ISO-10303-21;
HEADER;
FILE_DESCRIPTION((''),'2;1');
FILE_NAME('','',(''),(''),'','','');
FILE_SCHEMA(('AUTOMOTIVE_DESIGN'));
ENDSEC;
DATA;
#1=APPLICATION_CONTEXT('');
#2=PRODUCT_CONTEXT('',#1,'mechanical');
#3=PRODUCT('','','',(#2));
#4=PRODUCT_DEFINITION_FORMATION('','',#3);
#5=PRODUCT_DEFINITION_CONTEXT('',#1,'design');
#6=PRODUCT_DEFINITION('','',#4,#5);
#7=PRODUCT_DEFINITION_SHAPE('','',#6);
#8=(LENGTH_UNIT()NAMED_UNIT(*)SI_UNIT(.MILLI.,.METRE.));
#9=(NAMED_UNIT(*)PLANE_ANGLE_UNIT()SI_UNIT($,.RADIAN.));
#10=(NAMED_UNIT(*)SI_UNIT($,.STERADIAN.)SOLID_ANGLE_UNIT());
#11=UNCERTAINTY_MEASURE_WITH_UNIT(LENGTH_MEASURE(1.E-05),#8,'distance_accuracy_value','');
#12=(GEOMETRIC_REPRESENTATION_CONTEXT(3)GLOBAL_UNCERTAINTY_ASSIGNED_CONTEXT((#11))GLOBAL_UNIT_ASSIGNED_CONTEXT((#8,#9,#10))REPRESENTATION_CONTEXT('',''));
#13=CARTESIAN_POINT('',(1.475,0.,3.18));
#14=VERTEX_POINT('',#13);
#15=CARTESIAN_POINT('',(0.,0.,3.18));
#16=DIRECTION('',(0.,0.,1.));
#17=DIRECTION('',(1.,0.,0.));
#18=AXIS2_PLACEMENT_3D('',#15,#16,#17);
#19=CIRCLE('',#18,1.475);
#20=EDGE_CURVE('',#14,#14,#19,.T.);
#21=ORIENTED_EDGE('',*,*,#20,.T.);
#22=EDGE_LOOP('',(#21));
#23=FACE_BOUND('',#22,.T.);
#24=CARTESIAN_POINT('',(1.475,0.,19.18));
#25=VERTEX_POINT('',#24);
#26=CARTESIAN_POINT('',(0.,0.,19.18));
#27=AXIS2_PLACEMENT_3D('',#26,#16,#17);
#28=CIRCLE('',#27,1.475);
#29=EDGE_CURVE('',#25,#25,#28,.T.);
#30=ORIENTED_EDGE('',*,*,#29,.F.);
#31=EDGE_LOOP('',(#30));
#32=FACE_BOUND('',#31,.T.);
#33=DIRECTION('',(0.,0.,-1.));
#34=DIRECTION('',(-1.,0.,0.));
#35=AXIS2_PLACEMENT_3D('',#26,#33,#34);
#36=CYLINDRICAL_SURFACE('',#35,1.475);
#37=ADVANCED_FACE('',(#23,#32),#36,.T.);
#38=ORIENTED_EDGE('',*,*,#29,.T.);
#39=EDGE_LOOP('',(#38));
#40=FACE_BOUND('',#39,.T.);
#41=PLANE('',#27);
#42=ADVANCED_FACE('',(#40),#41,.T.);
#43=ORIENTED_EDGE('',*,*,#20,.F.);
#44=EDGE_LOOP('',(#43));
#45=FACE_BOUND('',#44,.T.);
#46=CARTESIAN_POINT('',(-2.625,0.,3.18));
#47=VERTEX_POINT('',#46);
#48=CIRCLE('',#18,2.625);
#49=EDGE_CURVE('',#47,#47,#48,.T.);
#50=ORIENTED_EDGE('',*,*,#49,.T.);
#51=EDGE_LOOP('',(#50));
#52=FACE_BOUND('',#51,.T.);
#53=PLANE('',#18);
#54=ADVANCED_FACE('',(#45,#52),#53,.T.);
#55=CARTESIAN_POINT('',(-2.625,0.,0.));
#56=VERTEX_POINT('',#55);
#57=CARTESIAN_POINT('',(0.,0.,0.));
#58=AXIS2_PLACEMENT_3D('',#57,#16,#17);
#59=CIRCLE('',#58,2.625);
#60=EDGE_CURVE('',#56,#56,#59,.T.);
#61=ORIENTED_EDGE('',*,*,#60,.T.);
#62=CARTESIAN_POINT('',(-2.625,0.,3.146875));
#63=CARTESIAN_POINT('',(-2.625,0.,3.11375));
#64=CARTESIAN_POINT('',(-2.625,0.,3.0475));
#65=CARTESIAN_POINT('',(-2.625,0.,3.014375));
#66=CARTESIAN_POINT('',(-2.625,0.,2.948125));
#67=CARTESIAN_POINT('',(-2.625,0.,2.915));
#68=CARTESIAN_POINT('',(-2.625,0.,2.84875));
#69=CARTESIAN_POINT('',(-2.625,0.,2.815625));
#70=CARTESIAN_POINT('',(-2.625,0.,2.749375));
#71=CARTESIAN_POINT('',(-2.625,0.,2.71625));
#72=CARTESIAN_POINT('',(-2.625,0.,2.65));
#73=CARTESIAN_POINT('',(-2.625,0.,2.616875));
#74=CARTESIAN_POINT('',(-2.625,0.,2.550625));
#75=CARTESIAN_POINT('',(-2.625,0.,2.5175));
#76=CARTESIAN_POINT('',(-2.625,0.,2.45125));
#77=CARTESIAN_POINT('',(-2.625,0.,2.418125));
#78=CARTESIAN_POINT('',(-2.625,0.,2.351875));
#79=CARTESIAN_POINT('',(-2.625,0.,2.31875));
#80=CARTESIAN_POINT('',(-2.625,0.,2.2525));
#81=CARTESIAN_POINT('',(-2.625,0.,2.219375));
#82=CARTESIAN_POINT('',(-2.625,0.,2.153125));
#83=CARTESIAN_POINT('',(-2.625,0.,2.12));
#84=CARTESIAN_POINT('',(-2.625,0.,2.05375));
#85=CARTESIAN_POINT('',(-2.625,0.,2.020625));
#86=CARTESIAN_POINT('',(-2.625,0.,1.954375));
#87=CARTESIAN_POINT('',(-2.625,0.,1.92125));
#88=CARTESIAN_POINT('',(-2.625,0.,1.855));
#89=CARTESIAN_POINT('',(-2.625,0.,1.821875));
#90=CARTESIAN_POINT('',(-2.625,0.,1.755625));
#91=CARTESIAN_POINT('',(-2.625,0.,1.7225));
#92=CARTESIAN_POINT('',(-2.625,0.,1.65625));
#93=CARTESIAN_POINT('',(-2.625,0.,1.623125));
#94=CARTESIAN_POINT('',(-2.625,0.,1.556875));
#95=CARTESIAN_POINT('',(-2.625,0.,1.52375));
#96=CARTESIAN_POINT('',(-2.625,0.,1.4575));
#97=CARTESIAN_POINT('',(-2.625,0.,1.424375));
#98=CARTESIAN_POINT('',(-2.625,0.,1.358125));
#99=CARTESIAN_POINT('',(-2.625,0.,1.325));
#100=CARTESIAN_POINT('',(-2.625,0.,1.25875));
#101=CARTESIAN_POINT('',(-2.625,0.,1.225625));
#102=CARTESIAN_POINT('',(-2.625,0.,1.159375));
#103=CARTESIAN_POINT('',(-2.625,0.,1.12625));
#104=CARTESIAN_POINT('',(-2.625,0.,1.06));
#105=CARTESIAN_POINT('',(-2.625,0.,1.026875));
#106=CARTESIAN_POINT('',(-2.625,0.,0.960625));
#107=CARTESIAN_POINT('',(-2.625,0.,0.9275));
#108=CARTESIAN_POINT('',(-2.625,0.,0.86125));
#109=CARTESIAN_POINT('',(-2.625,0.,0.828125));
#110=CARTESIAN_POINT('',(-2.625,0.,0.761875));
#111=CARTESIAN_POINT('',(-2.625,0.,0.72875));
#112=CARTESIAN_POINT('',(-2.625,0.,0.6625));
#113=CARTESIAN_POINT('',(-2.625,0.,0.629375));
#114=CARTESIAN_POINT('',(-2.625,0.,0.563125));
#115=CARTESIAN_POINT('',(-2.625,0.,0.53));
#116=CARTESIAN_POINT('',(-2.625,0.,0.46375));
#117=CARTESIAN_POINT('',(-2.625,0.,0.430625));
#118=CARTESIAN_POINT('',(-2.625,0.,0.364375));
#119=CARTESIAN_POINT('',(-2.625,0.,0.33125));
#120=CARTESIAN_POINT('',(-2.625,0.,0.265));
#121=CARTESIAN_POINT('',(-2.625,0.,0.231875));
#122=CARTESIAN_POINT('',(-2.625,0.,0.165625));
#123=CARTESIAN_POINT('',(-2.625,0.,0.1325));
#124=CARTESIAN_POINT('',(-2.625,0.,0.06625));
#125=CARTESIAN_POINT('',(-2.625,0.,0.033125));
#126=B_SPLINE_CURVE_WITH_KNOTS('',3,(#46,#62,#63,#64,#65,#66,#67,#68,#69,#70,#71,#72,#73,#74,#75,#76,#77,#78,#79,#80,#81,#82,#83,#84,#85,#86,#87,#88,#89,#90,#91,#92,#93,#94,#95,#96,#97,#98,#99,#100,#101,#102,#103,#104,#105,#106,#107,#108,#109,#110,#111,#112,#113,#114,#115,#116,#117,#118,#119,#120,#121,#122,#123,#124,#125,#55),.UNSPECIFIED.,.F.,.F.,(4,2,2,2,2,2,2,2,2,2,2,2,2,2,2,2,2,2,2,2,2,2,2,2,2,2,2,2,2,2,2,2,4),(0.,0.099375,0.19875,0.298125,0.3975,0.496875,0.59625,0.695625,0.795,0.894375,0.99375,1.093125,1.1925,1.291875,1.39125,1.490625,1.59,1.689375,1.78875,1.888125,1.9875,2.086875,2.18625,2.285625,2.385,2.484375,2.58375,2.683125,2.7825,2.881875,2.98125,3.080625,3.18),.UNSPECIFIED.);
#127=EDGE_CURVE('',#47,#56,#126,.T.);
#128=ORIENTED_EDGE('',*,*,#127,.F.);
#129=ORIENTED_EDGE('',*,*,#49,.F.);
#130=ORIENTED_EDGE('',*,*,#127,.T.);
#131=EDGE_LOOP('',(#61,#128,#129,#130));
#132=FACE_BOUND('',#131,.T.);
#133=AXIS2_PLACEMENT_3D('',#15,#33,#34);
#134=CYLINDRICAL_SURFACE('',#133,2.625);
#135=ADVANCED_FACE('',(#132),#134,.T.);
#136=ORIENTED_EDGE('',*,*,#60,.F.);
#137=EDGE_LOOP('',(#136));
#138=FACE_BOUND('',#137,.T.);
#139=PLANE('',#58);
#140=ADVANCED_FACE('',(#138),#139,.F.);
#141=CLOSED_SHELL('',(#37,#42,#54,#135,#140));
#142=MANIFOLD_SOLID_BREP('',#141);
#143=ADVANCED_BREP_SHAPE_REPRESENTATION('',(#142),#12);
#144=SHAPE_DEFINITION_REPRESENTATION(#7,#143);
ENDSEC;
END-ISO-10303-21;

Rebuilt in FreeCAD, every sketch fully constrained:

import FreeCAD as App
import Part
import Sketcher

doc = App.newDocument("Part")
params = doc.addObject("Spreadsheet::Sheet", "Params")
for row, (alias, value) in enumerate([
    ("sketch1_diameter", "5.25 mm"),
    ("pad1_length", "3.18 mm"),
    ("sketch2_diameter", "2.95 mm"),
    ("pad2_length", "16 mm"),
], start=1):
    params.set(f"A{row}", alias)
    params.set(f"B{row}", "=" + value)
    params.setAlias(f"B{row}", alias)

body = doc.addObject("PartDesign::Body", "Body")

# Sketch on XY plane
sketch1 = body.newObject("Sketcher::SketchObject", "Sketch")
sketch1.AttachmentSupport = (doc.getObject("XY_Plane"), [""])
sketch1.MapMode = "FlatFace"
sketch1.addGeometry(Part.Circle(App.Vector(0, 0, 0), App.Vector(0, 0, 1), 2.6), False)
sketch1.addConstraint(Sketcher.Constraint("Coincident", 0, 3, -1, 1))
sketch1.addConstraint(Sketcher.Constraint("Diameter", 0, 5.25))
sketch1.setExpression("Constraints[1]", "Params.sketch1_diameter")
pad1 = body.newObject("PartDesign::Pad", "Pad")
pad1.Profile = sketch1
pad1.setExpression("Length", "Params.pad1_length")

# Sketch on XY plane
sketch2 = body.newObject("Sketcher::SketchObject", "Sketch001")
sketch2.AttachmentSupport = (doc.getObject("XY_Plane"), [""])
sketch2.MapMode = "FlatFace"
sketch2.AttachmentOffset = App.Placement(App.Vector(0, 0, 3.18), App.Rotation())
sketch2.addGeometry(Part.Circle(App.Vector(0, 0, 0), App.Vector(0, 0, 1), 1.5), False)
sketch2.addConstraint(Sketcher.Constraint("Coincident", 0, 3, -1, 1))
sketch2.addConstraint(Sketcher.Constraint("Diameter", 0, 2.95))
sketch2.setExpression("Constraints[1]", "Params.sketch2_diameter")
pad2 = body.newObject("PartDesign::Pad", "Pad001")
pad2.Profile = sketch2
pad2.setExpression("Length", "Params.pad2_length")

doc.recompute()
